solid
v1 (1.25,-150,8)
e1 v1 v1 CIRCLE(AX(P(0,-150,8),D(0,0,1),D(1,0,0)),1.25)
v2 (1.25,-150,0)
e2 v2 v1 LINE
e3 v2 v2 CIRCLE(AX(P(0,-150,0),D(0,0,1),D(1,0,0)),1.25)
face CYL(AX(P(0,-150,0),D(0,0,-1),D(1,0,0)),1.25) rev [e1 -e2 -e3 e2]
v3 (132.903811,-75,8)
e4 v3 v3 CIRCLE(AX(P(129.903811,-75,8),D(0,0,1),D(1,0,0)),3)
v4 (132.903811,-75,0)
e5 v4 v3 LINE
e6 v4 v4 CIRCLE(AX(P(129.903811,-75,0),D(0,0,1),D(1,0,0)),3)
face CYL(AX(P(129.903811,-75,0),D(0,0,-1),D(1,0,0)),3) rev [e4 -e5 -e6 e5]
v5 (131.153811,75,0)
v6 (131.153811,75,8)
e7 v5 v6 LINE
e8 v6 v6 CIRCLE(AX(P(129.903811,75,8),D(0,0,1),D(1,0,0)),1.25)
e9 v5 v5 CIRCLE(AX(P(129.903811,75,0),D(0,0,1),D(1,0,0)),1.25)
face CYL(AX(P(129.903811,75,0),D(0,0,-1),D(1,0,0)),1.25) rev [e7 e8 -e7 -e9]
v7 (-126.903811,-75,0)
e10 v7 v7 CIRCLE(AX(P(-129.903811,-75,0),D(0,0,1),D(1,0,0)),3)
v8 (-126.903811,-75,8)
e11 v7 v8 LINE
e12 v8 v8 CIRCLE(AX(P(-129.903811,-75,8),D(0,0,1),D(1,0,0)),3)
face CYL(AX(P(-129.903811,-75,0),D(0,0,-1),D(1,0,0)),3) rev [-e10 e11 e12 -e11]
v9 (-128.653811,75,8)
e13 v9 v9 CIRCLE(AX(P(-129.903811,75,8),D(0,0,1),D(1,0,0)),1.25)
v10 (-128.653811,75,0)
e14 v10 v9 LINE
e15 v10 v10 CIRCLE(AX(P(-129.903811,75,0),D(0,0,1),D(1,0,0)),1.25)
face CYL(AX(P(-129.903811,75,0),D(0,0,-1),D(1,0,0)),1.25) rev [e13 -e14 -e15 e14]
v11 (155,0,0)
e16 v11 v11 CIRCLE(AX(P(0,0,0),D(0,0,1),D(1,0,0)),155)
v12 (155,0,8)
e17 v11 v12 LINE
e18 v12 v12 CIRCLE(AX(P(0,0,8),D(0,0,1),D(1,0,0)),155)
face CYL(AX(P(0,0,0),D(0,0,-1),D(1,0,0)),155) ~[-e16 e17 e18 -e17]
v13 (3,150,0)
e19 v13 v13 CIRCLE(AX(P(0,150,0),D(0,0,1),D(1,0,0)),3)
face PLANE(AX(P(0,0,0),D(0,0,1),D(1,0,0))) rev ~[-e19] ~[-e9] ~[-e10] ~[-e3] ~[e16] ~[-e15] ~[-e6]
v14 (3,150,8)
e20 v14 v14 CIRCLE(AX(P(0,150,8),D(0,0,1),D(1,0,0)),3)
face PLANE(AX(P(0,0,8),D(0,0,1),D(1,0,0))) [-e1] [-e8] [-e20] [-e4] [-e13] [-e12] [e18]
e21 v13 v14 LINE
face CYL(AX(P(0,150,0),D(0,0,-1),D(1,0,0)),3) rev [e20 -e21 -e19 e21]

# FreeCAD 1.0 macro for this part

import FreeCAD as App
import Part
import Sketcher

V = App.Vector
Q = App.Units.Quantity

doc = App.newDocument("Part")
params = doc.addObject("Spreadsheet::Sheet", "Params")
for row, (alias, value) in enumerate([
    ("sketch1_diameter", "310 mm"),
    ("sketch1_diameter2", "6 mm"),
    ("sketch1_diameter3", "2.5 mm"),
    ("pad1_length", "8 mm"),
], start=1):
    params.set(f"A{row}", alias)
    params.set(f"B{row}", "=" + value)
    params.setAlias(f"B{row}", alias)

body = doc.addObject("PartDesign::Body", "Body")

sketch1 = doc.addObject("Sketcher::SketchObject", "Sketch")
body.addObject(sketch1)
sketch1.AttachmentSupport = (doc.XY_Plane, [""])
sketch1.MapMode = "FlatFace"
sketch1.addGeometry([
    Part.Circle(V(0, 0, 0), V(0, 0, 1), 155),
    Part.Circle(V(-129.903811, -75, 0), V(0, 0, 1), 3),
    Part.Circle(V(0, -150, 0), V(0, 0, 1), 1.25),
    Part.Circle(V(129.903811, -75, 0), V(0, 0, 1), 3),
    Part.Circle(V(-129.903811, 75, 0), V(0, 0, 1), 1.25),
    Part.Circle(V(129.903811, 75, 0), V(0, 0, 1), 1.25),
    Part.Circle(V(0, 150, 0), V(0, 0, 1), 3),
], False)
sketch1.addConstraint([
    Sketcher.Constraint("Coincident", 0, 3, -1, 1),
    Sketcher.Constraint("Equal", 1, 3),
    Sketcher.Constraint("Equal", 2, 4),
    Sketcher.Constraint("Equal", 4, 5),
    Sketcher.Constraint("Equal", 3, 6),
    Sketcher.Constraint("Symmetric", 3, 3, 4, 3, -1, 1),
    Sketcher.Constraint("Symmetric", 1, 3, 5, 3, -1, 1),
    Sketcher.Constraint("Symmetric", 2, 3, 6, 3, -1, 1),
    Sketcher.Constraint("Symmetric", 1, 3, 3, 3, -2),
    Sketcher.Constraint("PointOnObject", 2, 3, -2),
    Sketcher.Constraint("Diameter", 0, Q("310 mm")),
    Sketcher.Constraint("Diameter", 1, Q("6 mm")),
    Sketcher.Constraint("Diameter", 2, Q("2.5 mm")),
    Sketcher.Constraint("DistanceY", 1, 3, -1, 1, Q("75 mm")),
    Sketcher.Constraint("DistanceY", 2, 3, -1, 1, Q("150 mm")),
    Sketcher.Constraint("DistanceX", 1, 3, -1, 1, Q("129.903811 mm")),
])
sketch1.setExpression("Constraints[10]", "Params.sketch1_diameter")
sketch1.setExpression("Constraints[11]", "Params.sketch1_diameter2")
sketch1.setExpression("Constraints[12]", "Params.sketch1_diameter3")
pad1 = doc.addObject("PartDesign::Pad", "Pad")
body.addObject(pad1)
pad1.Profile = sketch1
pad1.setExpression("Length", "Params.pad1_length")

doc.recompute()
